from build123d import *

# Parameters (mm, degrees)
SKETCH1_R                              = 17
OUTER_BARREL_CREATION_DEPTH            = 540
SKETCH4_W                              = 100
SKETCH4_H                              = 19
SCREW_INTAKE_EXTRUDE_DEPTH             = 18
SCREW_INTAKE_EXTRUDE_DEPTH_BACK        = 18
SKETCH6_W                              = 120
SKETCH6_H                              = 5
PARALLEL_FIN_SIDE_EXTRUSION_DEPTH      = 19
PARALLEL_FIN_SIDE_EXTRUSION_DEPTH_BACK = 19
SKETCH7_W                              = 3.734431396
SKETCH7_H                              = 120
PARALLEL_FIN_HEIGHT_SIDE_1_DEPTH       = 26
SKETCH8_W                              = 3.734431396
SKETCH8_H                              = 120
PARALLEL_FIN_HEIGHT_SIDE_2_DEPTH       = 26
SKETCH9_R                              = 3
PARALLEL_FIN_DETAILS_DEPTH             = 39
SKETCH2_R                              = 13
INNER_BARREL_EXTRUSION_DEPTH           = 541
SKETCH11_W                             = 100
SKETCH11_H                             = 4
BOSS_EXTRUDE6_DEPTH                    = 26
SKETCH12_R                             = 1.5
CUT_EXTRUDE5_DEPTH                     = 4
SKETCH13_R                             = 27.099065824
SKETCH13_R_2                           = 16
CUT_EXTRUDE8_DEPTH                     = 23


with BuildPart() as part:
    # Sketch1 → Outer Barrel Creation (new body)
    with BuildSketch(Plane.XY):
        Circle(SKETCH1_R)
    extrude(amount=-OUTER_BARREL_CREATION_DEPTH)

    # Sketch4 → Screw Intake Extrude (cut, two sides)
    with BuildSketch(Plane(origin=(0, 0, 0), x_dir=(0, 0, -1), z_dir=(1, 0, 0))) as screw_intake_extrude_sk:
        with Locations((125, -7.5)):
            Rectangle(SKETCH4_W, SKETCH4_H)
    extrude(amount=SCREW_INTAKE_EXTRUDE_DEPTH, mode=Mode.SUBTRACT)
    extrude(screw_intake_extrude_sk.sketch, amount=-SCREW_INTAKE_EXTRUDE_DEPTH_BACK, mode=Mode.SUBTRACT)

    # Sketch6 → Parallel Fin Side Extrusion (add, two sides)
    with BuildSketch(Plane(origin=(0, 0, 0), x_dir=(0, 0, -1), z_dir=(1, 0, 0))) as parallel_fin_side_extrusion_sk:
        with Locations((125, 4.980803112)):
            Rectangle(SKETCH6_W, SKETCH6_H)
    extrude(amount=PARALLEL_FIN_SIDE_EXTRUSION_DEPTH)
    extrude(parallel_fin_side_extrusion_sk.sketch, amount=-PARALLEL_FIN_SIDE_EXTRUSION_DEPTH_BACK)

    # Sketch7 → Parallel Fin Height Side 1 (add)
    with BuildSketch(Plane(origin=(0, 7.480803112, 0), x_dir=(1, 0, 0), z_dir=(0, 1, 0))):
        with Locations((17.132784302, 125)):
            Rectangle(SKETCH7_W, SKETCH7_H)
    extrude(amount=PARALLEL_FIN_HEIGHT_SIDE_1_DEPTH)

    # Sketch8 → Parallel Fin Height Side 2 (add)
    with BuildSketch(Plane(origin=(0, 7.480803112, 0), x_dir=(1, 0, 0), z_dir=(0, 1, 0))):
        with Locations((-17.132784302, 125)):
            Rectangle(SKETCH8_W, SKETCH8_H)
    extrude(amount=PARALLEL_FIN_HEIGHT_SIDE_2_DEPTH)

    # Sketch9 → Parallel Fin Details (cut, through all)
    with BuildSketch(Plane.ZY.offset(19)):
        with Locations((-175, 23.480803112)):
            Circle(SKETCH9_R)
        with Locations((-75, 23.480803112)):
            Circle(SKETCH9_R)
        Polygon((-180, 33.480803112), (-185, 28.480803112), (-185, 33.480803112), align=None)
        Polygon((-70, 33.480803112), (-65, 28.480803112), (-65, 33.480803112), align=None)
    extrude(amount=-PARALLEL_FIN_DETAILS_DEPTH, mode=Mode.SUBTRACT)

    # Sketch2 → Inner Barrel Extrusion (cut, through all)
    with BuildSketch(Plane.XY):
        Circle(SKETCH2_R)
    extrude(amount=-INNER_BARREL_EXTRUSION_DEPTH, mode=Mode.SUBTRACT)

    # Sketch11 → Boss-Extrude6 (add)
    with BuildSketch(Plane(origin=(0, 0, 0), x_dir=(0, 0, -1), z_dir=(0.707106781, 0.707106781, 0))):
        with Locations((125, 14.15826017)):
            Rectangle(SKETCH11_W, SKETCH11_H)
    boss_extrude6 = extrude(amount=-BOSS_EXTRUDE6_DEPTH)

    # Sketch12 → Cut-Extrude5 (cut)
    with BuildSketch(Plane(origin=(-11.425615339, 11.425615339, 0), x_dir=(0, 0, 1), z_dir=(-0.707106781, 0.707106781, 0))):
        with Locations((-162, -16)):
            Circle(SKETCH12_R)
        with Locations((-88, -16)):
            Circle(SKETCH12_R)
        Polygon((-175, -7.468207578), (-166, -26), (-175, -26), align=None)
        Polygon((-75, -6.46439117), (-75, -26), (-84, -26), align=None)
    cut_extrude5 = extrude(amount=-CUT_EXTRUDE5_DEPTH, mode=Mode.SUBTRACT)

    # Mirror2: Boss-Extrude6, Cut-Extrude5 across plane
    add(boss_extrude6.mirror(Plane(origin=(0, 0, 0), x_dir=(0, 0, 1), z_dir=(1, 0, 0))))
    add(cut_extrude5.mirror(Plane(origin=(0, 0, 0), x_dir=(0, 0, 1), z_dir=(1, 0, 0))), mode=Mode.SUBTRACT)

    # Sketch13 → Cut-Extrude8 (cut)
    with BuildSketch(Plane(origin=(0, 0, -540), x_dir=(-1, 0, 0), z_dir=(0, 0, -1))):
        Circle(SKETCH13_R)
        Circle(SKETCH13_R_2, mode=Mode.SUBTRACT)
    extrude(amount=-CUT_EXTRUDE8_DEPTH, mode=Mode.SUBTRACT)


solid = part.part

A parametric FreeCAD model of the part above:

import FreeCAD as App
import Part
import Sketcher


def add_polygon(sketch, points):
    """Adds a closed chain of lines whose ends are joined by coincident constraints."""
    first, n = sketch.GeometryCount, len(points)
    for a, b in zip(points, points[1:] + points[:1]):
        sketch.addGeometry(Part.LineSegment(App.Vector(*a, 0), App.Vector(*b, 0)), False)
    for i in range(n):
        sketch.addConstraint(Sketcher.Constraint("Coincident", first + i, 2, first + (i + 1) % n, 1))

doc = App.newDocument("Part")
body = doc.addObject("PartDesign::Body", "Body")

# Sketch on XY plane
sketch1 = body.newObject("Sketcher::SketchObject", "Sketch")
sketch1.AttachmentSupport = (doc.getObject("XY_Plane"), [""])
sketch1.MapMode = "FlatFace"
sketch1.addGeometry(Part.Circle(App.Vector(0, 0, 0), App.Vector(0, 0, 1), 17), False)
sketch1.addConstraint([
    Sketcher.Constraint("Coincident", 0, 3, -1, 1),
    Sketcher.Constraint("Diameter", 0, 34.0),
])
pad1 = body.newObject("PartDesign::Pad", "Pad")
pad1.Profile = sketch1
pad1.Length = 540
pad1.Reversed = True

# Sketch on YZ plane
sketch2 = body.newObject("Sketcher::SketchObject", "Sketch001")
sketch2.AttachmentSupport = (doc.getObject("YZ_Plane"), [""])
sketch2.MapMode = "FlatFace"
add_polygon(sketch2, [(2, -75), (-17, -75), (-17, -175), (2, -175)])  # lines 0-3
sketch2.addConstraint([
    Sketcher.Constraint("Horizontal", 0),
    Sketcher.Constraint("Vertical", 1),
    Sketcher.Constraint("Horizontal", 2),
    Sketcher.Constraint("Vertical", 3),
    Sketcher.Constraint("DistanceX", 0, 2, 0, 1, 19.0),
    Sketcher.Constraint("DistanceY", 1, 2, 1, 1, 100.0),
    Sketcher.Constraint("DistanceX", 0, 2, -1, 1, 17.0),
    Sketcher.Constraint("DistanceY", 0, 2, -1, 1, 75.0),
])
pocket1 = body.newObject("PartDesign::Pocket", "Pocket")
pocket1.Profile = sketch2
pocket1.Type = "ThroughAll"
pocket1.Midplane = True

# Sketch on YZ plane
sketch3 = body.newObject("Sketcher::SketchObject", "Sketch002")
sketch3.AttachmentSupport = (doc.getObject("YZ_Plane"), [""])
sketch3.MapMode = "FlatFace"
add_polygon(sketch3, [(7.480803, -65), (2.480803, -65), (2.480803, -185), (7.480803, -185)])  # lines 0-3
sketch3.addConstraint([
    Sketcher.Constraint("Horizontal", 0),
    Sketcher.Constraint("Vertical", 1),
    Sketcher.Constraint("Horizontal", 2),
    Sketcher.Constraint("Vertical", 3),
    Sketcher.Constraint("DistanceX", 0, 2, 0, 1, 5.0),
    Sketcher.Constraint("DistanceY", 1, 2, 1, 1, 120.0),
    Sketcher.Constraint("DistanceY", 0, 2, -1, 1, 65.0),
    Sketcher.Constraint("DistanceX", -1, 1, 0, 2, 2.480803),
])
pad2 = body.newObject("PartDesign::Pad", "Pad001")
pad2.Profile = sketch3
pad2.Type = "TwoLengths"
pad2.Length = 19
pad2.Length2 = 19

# Sketch on XZ plane
sketch4 = body.newObject("Sketcher::SketchObject", "Sketch003")
sketch4.AttachmentSupport = (doc.getObject("XZ_Plane"), [""])
sketch4.MapMode = "FlatFace"
sketch4.AttachmentOffset = App.Placement(App.Vector(0, 0, -7.480803), App.Rotation())
add_polygon(sketch4, [(15.265569, -185), (15.265569, -65), (19, -65), (19, -185)])  # lines 0-3
sketch4.addConstraint([
    Sketcher.Constraint("Vertical", 0),
    Sketcher.Constraint("Horizontal", 1),
    Sketcher.Constraint("Vertical", 2),
    Sketcher.Constraint("Horizontal", 3),
    Sketcher.Constraint("DistanceY", 0, 1, 0, 2, 120.0),
    Sketcher.Constraint("DistanceY", 0, 2, -1, 1, 65.0),
    Sketcher.Constraint("DistanceX", -1, 1, 1, 2, 19.0),
    Sketcher.Constraint("DistanceX", 1, 1, 1, 2, 3.734431),
])
pad3 = body.newObject("PartDesign::Pad", "Pad002")
pad3.Profile = sketch4
pad3.Length = 26
pad3.Reversed = True

# Sketch on XZ plane
sketch5 = body.newObject("Sketcher::SketchObject", "Sketch004")
sketch5.AttachmentSupport = (doc.getObject("XZ_Plane"), [""])
sketch5.MapMode = "FlatFace"
sketch5.AttachmentOffset = App.Placement(App.Vector(0, 0, -7.480803), App.Rotation())
add_polygon(sketch5, [(-19, -185), (-19, -65), (-15.265569, -65), (-15.265569, -185)])  # lines 0-3
sketch5.addConstraint([
    Sketcher.Constraint("Vertical", 0),
    Sketcher.Constraint("Horizontal", 1),
    Sketcher.Constraint("Vertical", 2),
    Sketcher.Constraint("Horizontal", 3),
    Sketcher.Constraint("DistanceY", 0, 1, 0, 2, 120.0),
    Sketcher.Constraint("DistanceX", 0, 2, -1, 1, 19.0),
    Sketcher.Constraint("DistanceY", 0, 2, -1, 1, 65.0),
    Sketcher.Constraint("DistanceX", 1, 1, 1, 2, 3.734431),
])
pad4 = body.newObject("PartDesign::Pad", "Pad003")
pad4.Profile = sketch5
pad4.Length = 26
pad4.Reversed = True

# Sketch on YZ plane
sketch6 = body.newObject("Sketcher::SketchObject", "Sketch005")
sketch6.AttachmentSupport = (doc.getObject("YZ_Plane"), [""])
sketch6.MapMode = "FlatFace"
sketch6.AttachmentOffset = App.Placement(App.Vector(0, 0, -19), App.Rotation())
sketch6.addGeometry(Part.Circle(App.Vector(23.480803, -175, 0), App.Vector(0, 0, 1), 3), False)  # 0
sketch6.addGeometry(Part.Circle(App.Vector(23.480803, -75, 0), App.Vector(0, 0, 1), 3), False)  # 1
add_polygon(sketch6, [(28.480803, -185), (33.480803, -180), (33.480803, -185)])  # lines 2-4
add_polygon(sketch6, [(33.480803, -70), (28.480803, -65), (33.480803, -65)])  # lines 5-7
sketch6.addConstraint([
    Sketcher.Constraint("Vertical", 3),
    Sketcher.Constraint("Horizontal", 4),
    Sketcher.Constraint("Horizontal", 6),
    Sketcher.Constraint("Vertical", 7),
    Sketcher.Constraint("Equal", 0, 1),
    Sketcher.Constraint("Perpendicular", 2, 5),
    Sketcher.Constraint("Vertical", 0, 3, 1, 3),
    Sketcher.Constraint("Vertical", 4, 2, 5, 2),
    Sketcher.Constraint("Vertical", 3, 2, 6, 2),
    Sketcher.Constraint("Equal", 6, 3),
    Sketcher.Constraint("Diameter", 0, 6.0),
    Sketcher.Constraint("DistanceX", 4, 2, 4, 1, 5.0),
    Sketcher.Constraint("DistanceY", 0, 3, -1, 1, 175.0),
    Sketcher.Constraint("DistanceY", 1, 3, -1, 1, 75.0),
    Sketcher.Constraint("DistanceY", 2, 2, -1, 1, 180.0),
    Sketcher.Constraint("DistanceY", 5, 2, -1, 1, 65.0),
    Sketcher.Constraint("DistanceX", 0, 3, 2, 2, 10.0),
    Sketcher.Constraint("DistanceX", -1, 1, 0, 3, 23.480803),
])
pocket2 = body.newObject("PartDesign::Pocket", "Pocket001")
pocket2.Profile = sketch6
pocket2.Type = "ThroughAll"
pocket2.Reversed = True

# Sketch on XY plane
sketch7 = body.newObject("Sketcher::SketchObject", "Sketch006")
sketch7.AttachmentSupport = (doc.getObject("XY_Plane"), [""])
sketch7.MapMode = "FlatFace"
sketch7.addGeometry(Part.Circle(App.Vector(0, 0, 0), App.Vector(0, 0, 1), 13), False)
sketch7.addConstraint([
    Sketcher.Constraint("Coincident", 0, 3, -1, 1),
    Sketcher.Constraint("Diameter", 0, 26.0),
])
pocket3 = body.newObject("PartDesign::Pocket", "Pocket002")
pocket3.Profile = sketch7
pocket3.Type = "ThroughAll"

# Sketch on an angled plane
sketch8 = body.newObject("Sketcher::SketchObject", "Sketch007")
sketch8.Placement = App.Placement(App.Vector(0, 0, 0), App.Rotation(App.Vector(0, 0, -1), App.Vector(-0.707106781, 0.707106781, 0), App.Vector(0.707106781, 0.707106781, 0), "ZXY"))
add_polygon(sketch8, [(75, 16.15826), (75, 12.15826), (175, 12.15826), (175, 16.15826)])  # lines 0-3
sketch8.addConstraint([
    Sketcher.Constraint("Vertical", 0),
    Sketcher.Constraint("Horizontal", 1),
    Sketcher.Constraint("Vertical", 2),
    Sketcher.Constraint("Horizontal", 3),
    Sketcher.Constraint("DistanceX", 1, 1, 1, 2, 100.0),
    Sketcher.Constraint("DistanceY", 0, 2, 0, 1, 4.0),
    Sketcher.Constraint("DistanceX", -1, 1, 0, 2, 75.0),
    Sketcher.Constraint("DistanceY", -1, 1, 0, 2, 12.15826),
])
pad5 = body.newObject("PartDesign::Pad", "Pad004")
pad5.Profile = sketch8
pad5.Length = 26
pad5.Reversed = True

# Sketch on an angled plane
sketch9 = body.newObject("Sketcher::SketchObject", "Sketch008")
sketch9.Placement = App.Placement(App.Vector(-11.425615, 11.425615, 0), App.Rotation(App.Vector(0, 0, 1), App.Vector(0.707106781, 0.707106781, 0), App.Vector(-0.707106781, 0.707106781, 0), "ZXY"))
sketch9.addGeometry(Part.Circle(App.Vector(-162, -16, 0), App.Vector(0, 0, 1), 1.5), False)  # 0
sketch9.addGeometry(Part.Circle(App.Vector(-88, -16, 0), App.Vector(0, 0, 1), 1.5), False)  # 1
add_polygon(sketch9, [(-166, -26), (-175, -7.468208), (-175, -26)])  # lines 2-4
add_polygon(sketch9, [(-75, -26), (-75, -6.464391), (-84, -26)])  # lines 5-7
sketch9.addConstraint([
    Sketcher.Constraint("Vertical", 3),
    Sketcher.Constraint("Horizontal", 4),
    Sketcher.Constraint("Vertical", 5),
    Sketcher.Constraint("Horizontal", 7),
    Sketcher.Constraint("Equal", 0, 1),
    Sketcher.Constraint("Horizontal", 0, 3, 1, 3),
    Sketcher.Constraint("Horizontal", 4, 2, 6, 2),
    Sketcher.Constraint("Equal", 4, 7),
    Sketcher.Constraint("Diameter", 0, 3.0),
    Sketcher.Constraint("DistanceX", 4, 1, 4, 2, 9.0),
    Sketcher.Constraint("DistanceX", 0, 3, -1, 1, 162.0),
    Sketcher.Constraint("DistanceY", 0, 3, -1, 1, 16.0),
    Sketcher.Constraint("DistanceX", 1, 3, -1, 1, 88.0),
    Sketcher.Constraint("DistanceX", 2, 2, -1, 1, 175.0),
    Sketcher.Constraint("DistanceY", 3, 2, -1, 1, 26.0),
    Sketcher.Constraint("DistanceX", 5, 2, -1, 1, 75.0),
    Sketcher.Constraint("DistanceY", 5, 1, 5, 2, 19.535609),
    Sketcher.Constraint("DistanceY", 3, 2, 3, 1, 18.531792),
])
pocket4 = body.newObject("PartDesign::Pocket", "Pocket003")
pocket4.Profile = sketch9
pocket4.Length = 4
doc.recompute()

mirrored = body.newObject("PartDesign::Mirrored", "Mirrored")
mirrored.Originals = [pad5, pocket4]
mirrored.MirrorPlane = (doc.getObject("YZ_Plane"), [""])
body.Tip = mirrored

# Sketch on XY plane
sketch10 = body.newObject("Sketcher::SketchObject", "Sketch009")
sketch10.AttachmentSupport = (doc.getObject("XY_Plane"), [""])
sketch10.MapMode = "FlatFace"
sketch10.AttachmentOffset = App.Placement(App.Vector(0, 0, -540), App.Rotation())
sketch10.addGeometry([
    Part.Circle(App.Vector(0, 0, 0), App.Vector(0, 0, 1), 27.099066),
    Part.Circle(App.Vector(0, 0, 0), App.Vector(0, 0, 1), 16),
], False)
sketch10.addConstraint([
    Sketcher.Constraint("Coincident", 0, 3, -1, 1),
    Sketcher.Constraint("Coincident", 1, 3, -1, 1),
    Sketcher.Constraint("Diameter", 1, 32.0),
    Sketcher.Constraint("Diameter", 0, 54.198132),
])
pocket5 = body.newObject("PartDesign::Pocket", "Pocket004")
pocket5.Profile = sketch10
pocket5.Length = 23
pocket5.Reversed = True

doc.recompute()
